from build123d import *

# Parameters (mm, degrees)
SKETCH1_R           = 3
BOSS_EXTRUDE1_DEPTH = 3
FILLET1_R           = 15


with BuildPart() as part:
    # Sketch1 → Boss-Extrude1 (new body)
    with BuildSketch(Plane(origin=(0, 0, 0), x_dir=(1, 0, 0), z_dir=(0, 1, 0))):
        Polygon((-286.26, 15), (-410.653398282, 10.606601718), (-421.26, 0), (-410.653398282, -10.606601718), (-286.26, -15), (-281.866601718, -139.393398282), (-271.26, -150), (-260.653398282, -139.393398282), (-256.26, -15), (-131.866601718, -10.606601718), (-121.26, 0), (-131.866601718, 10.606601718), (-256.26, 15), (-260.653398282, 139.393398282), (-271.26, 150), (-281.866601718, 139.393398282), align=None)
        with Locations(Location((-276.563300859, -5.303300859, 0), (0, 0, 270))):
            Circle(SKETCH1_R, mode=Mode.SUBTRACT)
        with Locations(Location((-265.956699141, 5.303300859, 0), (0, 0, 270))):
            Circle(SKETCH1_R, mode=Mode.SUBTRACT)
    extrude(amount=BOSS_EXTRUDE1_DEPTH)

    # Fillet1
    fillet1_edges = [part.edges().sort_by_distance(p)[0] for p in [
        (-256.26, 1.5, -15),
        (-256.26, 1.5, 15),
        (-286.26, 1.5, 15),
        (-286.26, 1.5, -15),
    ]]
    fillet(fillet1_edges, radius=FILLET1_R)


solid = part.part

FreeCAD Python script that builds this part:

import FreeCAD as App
import Part
import Sketcher
from FreeCAD import Vector


def edges_at(feature, points):
    """Names of the edges that pass closest to the given points."""
    edges = feature.Shape.Edges
    near = lambda p: min(range(len(edges)), key=lambda i: edges[i].distToShape(Part.Vertex(*p))[0])
    return sorted({f"Edge{near(p) + 1}" for p in points})

doc = App.newDocument("Part")
body = doc.addObject("PartDesign::Body", "Body")

# Sketch on XZ plane
sketch1 = body.newObject("Sketcher::SketchObject", "Sketch")
sketch1.AttachmentSupport = (doc.getObject("XZ_Plane"), [""])
sketch1.MapMode = "FlatFace"
sketch1.addGeometry([
    Part.LineSegment(Vector(-286.26, -15, 0), Vector(-410.653398, -10.606602, 0)),  # 0
    Part.LineSegment(Vector(-410.653398, -10.606602, 0), Vector(-421.26, 0, 0)),  # 1
    Part.LineSegment(Vector(-421.26, 0, 0), Vector(-410.653398, 10.606602, 0)),  # 2
    Part.LineSegment(Vector(-410.653398, 10.606602, 0), Vector(-286.26, 15, 0)),  # 3
    Part.LineSegment(Vector(-286.26, 15, 0), Vector(-281.866602, 139.393398, 0)),  # 4
    Part.LineSegment(Vector(-281.866602, 139.393398, 0), Vector(-271.26, 150, 0)),  # 5
    Part.LineSegment(Vector(-271.26, 150, 0), Vector(-260.653398, 139.393398, 0)),  # 6
    Part.LineSegment(Vector(-260.653398, 139.393398, 0), Vector(-256.26, 15, 0)),  # 7
    Part.LineSegment(Vector(-256.26, 15, 0), Vector(-131.866602, 10.606602, 0)),  # 8
    Part.LineSegment(Vector(-131.866602, 10.606602, 0), Vector(-121.26, 0, 0)),  # 9
    Part.LineSegment(Vector(-121.26, 0, 0), Vector(-131.866602, -10.606602, 0)),  # 10
    Part.LineSegment(Vector(-131.866602, -10.606602, 0), Vector(-256.26, -15, 0)),  # 11
    Part.LineSegment(Vector(-256.26, -15, 0), Vector(-260.653398, -139.393398, 0)),  # 12
    Part.LineSegment(Vector(-260.653398, -139.393398, 0), Vector(-271.26, -150, 0)),  # 13
    Part.LineSegment(Vector(-271.26, -150, 0), Vector(-281.866602, -139.393398, 0)),  # 14
    Part.LineSegment(Vector(-281.866602, -139.393398, 0), Vector(-286.26, -15, 0)),  # 15
    Part.Circle(Vector(-276.563301, 5.303301, 0), Vector(0, 0, 1), 3),  # 16
    Part.Circle(Vector(-265.956699, -5.303301, 0), Vector(0, 0, 1), 3),  # 17
], False)
sketch1.addConstraint([
    Sketcher.Constraint("Coincident", 0, 2, 1, 1),
    Sketcher.Constraint("Coincident", 1, 2, 2, 1),
    Sketcher.Constraint("Coincident", 2, 2, 3, 1),
    Sketcher.Constraint("Coincident", 3, 2, 4, 1),
    Sketcher.Constraint("Coincident", 4, 2, 5, 1),
    Sketcher.Constraint("Coincident", 5, 2, 6, 1),
    Sketcher.Constraint("Coincident", 6, 2, 7, 1),
    Sketcher.Constraint("Coincident", 7, 2, 8, 1),
    Sketcher.Constraint("Coincident", 8, 2, 9, 1),
    Sketcher.Constraint("Coincident", 9, 2, 10, 1),
    Sketcher.Constraint("Coincident", 10, 2, 11, 1),
    Sketcher.Constraint("Coincident", 11, 2, 12, 1),
    Sketcher.Constraint("Coincident", 12, 2, 13, 1),
    Sketcher.Constraint("Coincident", 13, 2, 14, 1),
    Sketcher.Constraint("Coincident", 14, 2, 15, 1),
    Sketcher.Constraint("Coincident", 15, 2, 0, 1),
    Sketcher.Constraint("Equal", 16, 17),
    Sketcher.Constraint("Symmetric", 0, 2, 2, 2, -1),
    Sketcher.Constraint("Symmetric", 8, 2, 10, 2, -1),
    Sketcher.Constraint("Symmetric", 7, 2, 11, 2, -1),
    Sketcher.Constraint("Symmetric", 6, 2, 12, 2, -1),
    Sketcher.Constraint("Symmetric", 5, 2, 13, 2, -1),
    Sketcher.Constraint("Symmetric", 4, 2, 14, 2, -1),
    Sketcher.Constraint("Symmetric", 3, 2, 15, 2, -1),
    Sketcher.Constraint("PointOnObject", 1, 2, -1),
    Sketcher.Constraint("PointOnObject", 9, 2, -1),
    Sketcher.Constraint("Perpendicular", 1, 2),
    Sketcher.Constraint("Perpendicular", 0, 4),
    Sketcher.Constraint("Parallel", 2, 5),
    Sketcher.Constraint("Perpendicular", 5, 6),
    Sketcher.Constraint("Perpendicular", 3, 7),
    Sketcher.Constraint("Perpendicular", 4, 8),
    Sketcher.Constraint("Parallel", 6, 9),
    Sketcher.Constraint("Horizontal", 4, 2, 6, 2),
    Sketcher.Constraint("Horizontal", 3, 2, 7, 2),
    Sketcher.Constraint("Horizontal", 2, 2, 8, 2),
    Sketcher.Constraint("Equal", 3, 4),
    Sketcher.Constraint("Equal", 2, 5),
    Sketcher.Constraint("Diameter", 16, 6.0),
    Sketcher.Constraint("Distance", 1, 15.0),
    Sketcher.Constraint("DistanceY", -1, 1, 3, 2, 15.0),
    Sketcher.Constraint("DistanceY", -1, 1, 5, 2, 150.0),
    Sketcher.Constraint("DistanceX", 1, 2, -1, 1, 421.26),
    Sketcher.Constraint("DistanceX", 16, 3, -1, 1, 276.563301),
    Sketcher.Constraint("DistanceY", -1, 1, 16, 3, 5.303301),
    Sketcher.Constraint("DistanceX", 17, 3, -1, 1, 265.956699),
    Sketcher.Constraint("DistanceY", 17, 3, -1, 1, 5.303301),
])
pad1 = body.newObject("PartDesign::Pad", "Pad")
pad1.Profile = sketch1
pad1.Length = 3
pad1.Reversed = True
doc.recompute()

fillet = body.newObject("PartDesign::Fillet", "Fillet")
fillet.Base = (pad1, edges_at(pad1, [
    (-256.26, 1.5, -15),
    (-256.26, 1.5, 15),
    (-286.26, 1.5, 15),
    (-286.26, 1.5, -15),
]))
fillet.Radius = 15

doc.recompute()
